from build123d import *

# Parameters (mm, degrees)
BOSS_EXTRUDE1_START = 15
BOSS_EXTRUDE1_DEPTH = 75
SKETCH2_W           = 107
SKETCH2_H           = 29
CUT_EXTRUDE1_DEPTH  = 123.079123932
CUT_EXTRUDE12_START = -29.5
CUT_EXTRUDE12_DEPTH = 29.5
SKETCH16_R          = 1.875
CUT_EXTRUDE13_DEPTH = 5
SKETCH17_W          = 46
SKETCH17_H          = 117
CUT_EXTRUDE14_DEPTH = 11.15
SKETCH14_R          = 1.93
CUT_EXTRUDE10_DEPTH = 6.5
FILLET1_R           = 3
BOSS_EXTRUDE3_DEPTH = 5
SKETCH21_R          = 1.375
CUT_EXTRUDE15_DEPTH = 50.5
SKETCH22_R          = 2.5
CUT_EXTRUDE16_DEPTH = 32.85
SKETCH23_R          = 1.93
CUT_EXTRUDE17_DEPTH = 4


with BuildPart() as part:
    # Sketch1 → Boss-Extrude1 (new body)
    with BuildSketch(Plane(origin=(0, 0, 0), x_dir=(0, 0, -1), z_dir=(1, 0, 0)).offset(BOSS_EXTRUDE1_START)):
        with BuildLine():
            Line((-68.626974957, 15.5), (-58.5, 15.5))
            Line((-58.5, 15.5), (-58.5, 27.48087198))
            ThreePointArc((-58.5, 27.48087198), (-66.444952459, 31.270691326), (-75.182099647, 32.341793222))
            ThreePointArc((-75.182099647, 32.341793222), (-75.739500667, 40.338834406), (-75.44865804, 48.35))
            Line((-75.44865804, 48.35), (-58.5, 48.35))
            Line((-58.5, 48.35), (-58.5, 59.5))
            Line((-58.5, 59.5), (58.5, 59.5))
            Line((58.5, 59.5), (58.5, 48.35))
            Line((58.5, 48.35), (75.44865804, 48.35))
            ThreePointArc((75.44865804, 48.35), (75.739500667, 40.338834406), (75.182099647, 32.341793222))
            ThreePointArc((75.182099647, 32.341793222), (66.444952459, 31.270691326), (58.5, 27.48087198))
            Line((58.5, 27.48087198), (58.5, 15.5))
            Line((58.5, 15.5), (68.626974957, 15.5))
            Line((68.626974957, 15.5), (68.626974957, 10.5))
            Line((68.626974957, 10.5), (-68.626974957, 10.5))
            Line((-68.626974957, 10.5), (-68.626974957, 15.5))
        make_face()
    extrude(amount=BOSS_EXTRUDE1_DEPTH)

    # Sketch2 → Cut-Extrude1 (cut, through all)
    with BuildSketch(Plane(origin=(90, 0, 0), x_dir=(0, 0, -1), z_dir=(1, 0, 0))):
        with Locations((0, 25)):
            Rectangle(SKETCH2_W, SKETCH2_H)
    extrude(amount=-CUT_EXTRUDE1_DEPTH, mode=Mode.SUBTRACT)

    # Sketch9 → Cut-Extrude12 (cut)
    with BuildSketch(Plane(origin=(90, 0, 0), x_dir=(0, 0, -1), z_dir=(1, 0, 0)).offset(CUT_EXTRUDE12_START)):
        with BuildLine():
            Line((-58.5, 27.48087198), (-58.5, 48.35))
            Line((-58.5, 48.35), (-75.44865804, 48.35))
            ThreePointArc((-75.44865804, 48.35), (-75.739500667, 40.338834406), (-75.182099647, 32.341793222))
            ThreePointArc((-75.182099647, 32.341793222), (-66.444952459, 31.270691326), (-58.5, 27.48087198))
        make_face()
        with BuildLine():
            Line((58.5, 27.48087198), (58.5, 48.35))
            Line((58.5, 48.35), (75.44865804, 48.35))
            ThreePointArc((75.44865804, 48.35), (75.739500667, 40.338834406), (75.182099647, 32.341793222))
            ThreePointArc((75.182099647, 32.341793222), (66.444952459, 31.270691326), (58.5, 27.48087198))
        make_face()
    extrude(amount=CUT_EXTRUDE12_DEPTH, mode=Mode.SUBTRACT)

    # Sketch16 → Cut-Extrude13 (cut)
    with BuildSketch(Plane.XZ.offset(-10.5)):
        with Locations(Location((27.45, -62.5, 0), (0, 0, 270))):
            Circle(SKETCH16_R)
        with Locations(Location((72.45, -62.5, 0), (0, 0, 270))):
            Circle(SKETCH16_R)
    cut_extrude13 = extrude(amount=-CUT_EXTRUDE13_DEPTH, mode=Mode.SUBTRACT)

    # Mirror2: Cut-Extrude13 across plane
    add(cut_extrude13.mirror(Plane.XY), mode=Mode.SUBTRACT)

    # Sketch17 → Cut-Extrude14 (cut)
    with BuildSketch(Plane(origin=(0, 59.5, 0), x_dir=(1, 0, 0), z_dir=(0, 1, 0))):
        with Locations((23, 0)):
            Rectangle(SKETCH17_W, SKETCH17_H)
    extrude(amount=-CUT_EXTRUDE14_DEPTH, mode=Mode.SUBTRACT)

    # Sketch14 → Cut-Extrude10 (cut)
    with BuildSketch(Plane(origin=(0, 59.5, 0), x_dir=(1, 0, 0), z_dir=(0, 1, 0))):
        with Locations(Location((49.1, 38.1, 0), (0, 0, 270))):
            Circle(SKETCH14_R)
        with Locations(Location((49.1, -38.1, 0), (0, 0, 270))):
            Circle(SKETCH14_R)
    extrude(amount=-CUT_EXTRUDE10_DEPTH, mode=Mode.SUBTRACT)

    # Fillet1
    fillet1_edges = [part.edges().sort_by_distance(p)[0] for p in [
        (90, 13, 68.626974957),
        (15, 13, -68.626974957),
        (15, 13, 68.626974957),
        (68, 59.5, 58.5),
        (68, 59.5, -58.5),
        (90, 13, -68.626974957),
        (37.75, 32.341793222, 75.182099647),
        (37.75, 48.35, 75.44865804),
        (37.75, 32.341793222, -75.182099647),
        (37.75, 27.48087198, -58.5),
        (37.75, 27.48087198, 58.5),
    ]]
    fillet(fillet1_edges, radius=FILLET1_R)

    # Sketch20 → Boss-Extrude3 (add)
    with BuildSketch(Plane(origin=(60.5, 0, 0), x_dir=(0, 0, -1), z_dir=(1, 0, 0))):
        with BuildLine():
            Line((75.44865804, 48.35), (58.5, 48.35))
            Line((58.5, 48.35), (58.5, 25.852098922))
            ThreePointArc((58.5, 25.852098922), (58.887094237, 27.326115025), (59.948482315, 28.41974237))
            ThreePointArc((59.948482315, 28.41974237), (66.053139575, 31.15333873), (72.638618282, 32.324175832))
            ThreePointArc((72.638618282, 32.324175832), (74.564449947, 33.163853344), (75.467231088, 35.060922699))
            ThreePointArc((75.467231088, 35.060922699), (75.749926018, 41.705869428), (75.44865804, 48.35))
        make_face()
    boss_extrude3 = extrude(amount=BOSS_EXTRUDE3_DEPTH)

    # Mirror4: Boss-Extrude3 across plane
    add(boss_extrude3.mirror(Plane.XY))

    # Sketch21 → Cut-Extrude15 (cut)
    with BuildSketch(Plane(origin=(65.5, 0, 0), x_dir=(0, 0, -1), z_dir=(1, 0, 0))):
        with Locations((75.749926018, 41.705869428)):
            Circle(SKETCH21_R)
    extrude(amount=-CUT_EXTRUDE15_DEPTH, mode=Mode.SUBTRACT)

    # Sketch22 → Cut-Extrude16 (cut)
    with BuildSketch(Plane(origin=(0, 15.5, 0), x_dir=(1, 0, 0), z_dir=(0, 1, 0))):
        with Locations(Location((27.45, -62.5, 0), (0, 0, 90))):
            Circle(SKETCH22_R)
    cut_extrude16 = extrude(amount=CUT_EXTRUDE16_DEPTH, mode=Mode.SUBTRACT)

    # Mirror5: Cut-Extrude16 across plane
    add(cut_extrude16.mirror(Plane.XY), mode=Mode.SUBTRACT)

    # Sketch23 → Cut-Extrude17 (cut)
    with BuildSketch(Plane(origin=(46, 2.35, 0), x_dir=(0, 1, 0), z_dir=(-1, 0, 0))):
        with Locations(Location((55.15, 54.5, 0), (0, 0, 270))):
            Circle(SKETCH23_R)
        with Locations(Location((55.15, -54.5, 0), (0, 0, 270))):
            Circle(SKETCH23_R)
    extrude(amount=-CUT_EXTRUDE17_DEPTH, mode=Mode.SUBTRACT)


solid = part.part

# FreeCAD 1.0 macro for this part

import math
import FreeCAD as App
import Part
import Sketcher
from FreeCAD import Vector


def edges_at(feature, points):
    """Names of the edges that pass closest to the given points."""
    edges = feature.Shape.Edges
    near = lambda p: min(range(len(edges)), key=lambda i: edges[i].distToShape(Part.Vertex(*p))[0])
    return sorted({f"Edge{near(p) + 1}" for p in points})

doc = App.newDocument("Part")
body = doc.addObject("PartDesign::Body", "Body")

# Sketch on YZ plane
sketch1 = body.newObject("Sketcher::SketchObject", "Sketch")
sketch1.AttachmentSupport = (doc.getObject("YZ_Plane"), [""])
sketch1.MapMode = "FlatFace"
sketch1.AttachmentOffset = App.Placement(Vector(0, 0, 15), App.Rotation())
sketch1.addGeometry([
    Part.LineSegment(Vector(15.5, 58.5, 0), Vector(15.5, 68.626975, 0)),  # 0
    Part.LineSegment(Vector(15.5, 68.626975, 0), Vector(10.5, 68.626975, 0)),  # 1
    Part.LineSegment(Vector(10.5, 68.626975, 0), Vector(10.5, -68.626975, 0)),  # 2
    Part.LineSegment(Vector(10.5, -68.626975, 0), Vector(15.5, -68.626975, 0)),  # 3
    Part.LineSegment(Vector(15.5, -68.626975, 0), Vector(15.5, -58.5, 0)),  # 4
    Part.LineSegment(Vector(15.5, -58.5, 0), Vector(27.480872, -58.5, 0)),  # 5
    Part.ArcOfCircle(Part.Circle(Vector(5.000595, -74.099676, 0), Vector(0, 0, 1), 27.362616), math.radians(-2.267125), math.radians(34.757834)),  # 6
    Part.ArcOfCircle(Part.Circle(Vector(41.6, 0, 0), Vector(0, 0, 1), 75.75), math.radians(-97.020274), math.radians(-84.887655)),  # 7
    Part.LineSegment(Vector(48.35, -75.448658, 0), Vector(48.35, -58.5, 0)),  # 8
    Part.LineSegment(Vector(48.35, -58.5, 0), Vector(59.5, -58.5, 0)),  # 9
    Part.LineSegment(Vector(59.5, -58.5, 0), Vector(59.5, 58.5, 0)),  # 10
    Part.LineSegment(Vector(59.5, 58.5, 0), Vector(48.35, 58.5, 0)),  # 11
    Part.LineSegment(Vector(48.35, 58.5, 0), Vector(48.35, 75.448658, 0)),  # 12
    Part.ArcOfCircle(Part.Circle(Vector(41.6, 0, 0), Vector(0, 0, 1), 75.75), math.radians(84.887655), math.radians(97.020274)),  # 13
    Part.ArcOfCircle(Part.Circle(Vector(5.000595, 74.099676, 0), Vector(0, 0, 1), 27.362616), math.radians(-34.757834), math.radians(2.267125)),  # 14
    Part.LineSegment(Vector(27.480872, 58.5, 0), Vector(15.5, 58.5, 0)),  # 15
], False)
sketch1.addConstraint([
    Sketcher.Constraint("Coincident", 0, 2, 1, 1),
    Sketcher.Constraint("Coincident", 1, 2, 2, 1),
    Sketcher.Constraint("Coincident", 2, 2, 3, 1),
    Sketcher.Constraint("Coincident", 3, 2, 4, 1),
    Sketcher.Constraint("Coincident", 4, 2, 5, 1),
    Sketcher.Constraint("Coincident", 5, 2, 6, 2),
    Sketcher.Constraint("Coincident", 6, 1, 7, 1),
    Sketcher.Constraint("Coincident", 7, 2, 8, 1),
    Sketcher.Constraint("Coincident", 8, 2, 9, 1),
    Sketcher.Constraint("Coincident", 9, 2, 10, 1),
    Sketcher.Constraint("Coincident", 10, 2, 11, 1),
    Sketcher.Constraint("Coincident", 11, 2, 12, 1),
    Sketcher.Constraint("Coincident", 12, 2, 13, 1),
    Sketcher.Constraint("Coincident", 13, 2, 14, 2),
    Sketcher.Constraint("Coincident", 14, 1, 15, 1),
    Sketcher.Constraint("Coincident", 15, 2, 0, 1),
    Sketcher.Constraint("Vertical", 0),
    Sketcher.Constraint("Horizontal", 1),
    Sketcher.Constraint("Vertical", 2),
    Sketcher.Constraint("Horizontal", 3),
    Sketcher.Constraint("Vertical", 4),
    Sketcher.Constraint("Horizontal", 5),
    Sketcher.Constraint("Vertical", 8),
    Sketcher.Constraint("Horizontal", 9),
    Sketcher.Constraint("Vertical", 10),
    Sketcher.Constraint("Horizontal", 11),
    Sketcher.Constraint("Vertical", 12),
    Sketcher.Constraint("Horizontal", 15),
    Sketcher.Constraint("Coincident", 13, 3, 7, 3),
    Sketcher.Constraint("Equal", 7, 13),
    Sketcher.Constraint("Equal", 6, 14),
    Sketcher.Constraint("Symmetric", 6, 3, 14, 3, -1),
    Sketcher.Constraint("Symmetric", 0, 2, 3, 2, -1),
    Sketcher.Constraint("Symmetric", 8, 2, 11, 2, -1),
    Sketcher.Constraint("PointOnObject", 7, 3, -1),
    Sketcher.Constraint("Horizontal", 5, 2, 8, 2),
    Sketcher.Constraint("Horizontal", 11, 2, 14, 1),
    Sketcher.Constraint("DistanceX", 1, 2, 1, 1, 5.0),
    Sketcher.Constraint("DistanceY", 10, 1, 10, 2, 117.0),
    Sketcher.Constraint("Radius", 7, 75.75),
    Sketcher.Constraint("DistanceX", 4, 2, 9, 2, 44.0),
    Sketcher.Constraint("DistanceX", 9, 1, 9, 2, 11.15),
    Sketcher.Constraint("DistanceX", -1, 1, 7, 3, 41.6),
    Sketcher.Constraint("DistanceX", -1, 1, 0, 2, 15.5),
    Sketcher.Constraint("Radius", 6, 27.362616),
    Sketcher.Constraint("DistanceX", 5, 1, 5, 2, 11.980872),
    Sketcher.Constraint("DistanceY", 2, 2, 2, 1, 137.25395),
    Sketcher.Constraint("DistanceY", -1, 1, 13, 2, 75.1821),
])
pad1 = body.newObject("PartDesign::Pad", "Pad")
pad1.Profile = sketch1
pad1.Length = 75

# Sketch on YZ plane
sketch2 = body.newObject("Sketcher::SketchObject", "Sketch001")
sketch2.AttachmentSupport = (doc.getObject("YZ_Plane"), [""])
sketch2.MapMode = "FlatFace"
sketch2.AttachmentOffset = App.Placement(Vector(0, 0, 90), App.Rotation())
sketch2.addGeometry([
    Part.LineSegment(Vector(39.5, 53.5, 0), Vector(10.5, 53.5, 0)),
    Part.LineSegment(Vector(10.5, 53.5, 0), Vector(10.5, -53.5, 0)),
    Part.LineSegment(Vector(10.5, -53.5, 0), Vector(39.5, -53.5, 0)),
    Part.LineSegment(Vector(39.5, -53.5, 0), Vector(39.5, 53.5, 0)),
], False)
sketch2.addConstraint([
    Sketcher.Constraint("Coincident", 0, 2, 1, 1),
    Sketcher.Constraint("Coincident", 1, 2, 2, 1),
    Sketcher.Constraint("Coincident", 2, 2, 3, 1),
    Sketcher.Constraint("Coincident", 3, 2, 0, 1),
    Sketcher.Constraint("Horizontal", 0),
    Sketcher.Constraint("Vertical", 1),
    Sketcher.Constraint("Horizontal", 2),
    Sketcher.Constraint("Vertical", 3),
    Sketcher.Constraint("DistanceX", 0, 2, 0, 1, 29.0),
    Sketcher.Constraint("DistanceY", 1, 2, 1, 1, 107.0),
    Sketcher.Constraint("DistanceX", -1, 1, 0, 2, 10.5),
    Sketcher.Constraint("DistanceY", -1, 1, 0, 2, 53.5),
])
pocket1 = body.newObject("PartDesign::Pocket", "Pocket")
pocket1.Profile = sketch2
pocket1.Type = "ThroughAll"

# Sketch on YZ plane
sketch3 = body.newObject("Sketcher::SketchObject", "Sketch002")
sketch3.AttachmentSupport = (doc.getObject("YZ_Plane"), [""])
sketch3.MapMode = "FlatFace"
sketch3.AttachmentOffset = App.Placement(Vector(0, 0, 60.5), App.Rotation())
sketch3.addGeometry([
    Part.LineSegment(Vector(27.480872, 58.5, 0), Vector(48.35, 58.5, 0)),  # 0
    Part.LineSegment(Vector(48.35, 58.5, 0), Vector(48.35, 75.448658, 0)),  # 1
    Part.ArcOfCircle(Part.Circle(Vector(41.6, 0, 0), Vector(0, 0, 1), 75.75), math.radians(84.887655), math.radians(97.020274)),  # 2
    Part.ArcOfCircle(Part.Circle(Vector(5.000595, 74.099676, 0), Vector(0, 0, 1), 27.362616), math.radians(-34.757834), math.radians(2.267125)),  # 3
    Part.LineSegment(Vector(48.35, -58.5, 0), Vector(27.480872, -58.5, 0)),  # 4
    Part.ArcOfCircle(Part.Circle(Vector(5.000595, -74.099676, 0), Vector(0, 0, 1), 27.362616), math.radians(-2.267125), math.radians(34.757834)),  # 5
    Part.ArcOfCircle(Part.Circle(Vector(41.6, 0, 0), Vector(0, 0, 1), 75.75), math.radians(-97.020274), math.radians(-84.887655)),  # 6
    Part.LineSegment(Vector(48.35, -75.448658, 0), Vector(48.35, -58.5, 0)),  # 7
], False)
sketch3.addConstraint([
    Sketcher.Constraint("Coincident", 0, 2, 1, 1),
    Sketcher.Constraint("Coincident", 1, 2, 2, 1),
    Sketcher.Constraint("Coincident", 2, 2, 3, 2),
    Sketcher.Constraint("Coincident", 3, 1, 0, 1),
    Sketcher.Constraint("Coincident", 4, 2, 5, 2),
    Sketcher.Constraint("Coincident", 5, 1, 6, 1),
    Sketcher.Constraint("Coincident", 6, 2, 7, 1),
    Sketcher.Constraint("Coincident", 7, 2, 4, 1),
    Sketcher.Constraint("Horizontal", 0),
    Sketcher.Constraint("Vertical", 1),
    Sketcher.Constraint("Horizontal", 4),
    Sketcher.Constraint("Vertical", 7),
    Sketcher.Constraint("Coincident", 6, 3, 2, 3),
    Sketcher.Constraint("Equal", 3, 5),
    Sketcher.Constraint("Equal", 2, 6),
    Sketcher.Constraint("Symmetric", 3, 3, 5, 3, -1),
    Sketcher.Constraint("Symmetric", 1, 2, 6, 2, -1),
    Sketcher.Constraint("Vertical", 3, 1, 4, 2),
    Sketcher.Constraint("Radius", 2, 75.75),
    Sketcher.Constraint("DistanceY", 4, 2, 3, 1, 117.0),
    Sketcher.Constraint("DistanceX", -1, 1, 2, 3, 41.6),
    Sketcher.Constraint("DistanceX", -1, 1, 0, 2, 48.35),
    Sketcher.Constraint("Radius", 3, 27.362616),
    Sketcher.Constraint("DistanceX", 0, 1, 0, 2, 20.869128),
    Sketcher.Constraint("DistanceY", -1, 1, 2, 2, 75.1821),
])
pocket2 = body.newObject("PartDesign::Pocket", "Pocket001")
pocket2.Profile = sketch3
pocket2.Length = 29.5
pocket2.Reversed = True

# Sketch on XZ plane
sketch4 = body.newObject("Sketcher::SketchObject", "Sketch003")
sketch4.AttachmentSupport = (doc.getObject("XZ_Plane"), [""])
sketch4.MapMode = "FlatFace"
sketch4.AttachmentOffset = App.Placement(Vector(0, 0, -10.5), App.Rotation())
sketch4.addGeometry([
    Part.Circle(Vector(27.45, -62.5, 0), Vector(0, 0, 1), 1.875),
    Part.Circle(Vector(72.45, -62.5, 0), Vector(0, 0, 1), 1.875),
], False)
sketch4.addConstraint([
    Sketcher.Constraint("Equal", 0, 1),
    Sketcher.Constraint("Horizontal", 0, 3, 1, 3),
    Sketcher.Constraint("Diameter", 0, 3.75),
    Sketcher.Constraint("DistanceX", 0, 3, 1, 3, 45.0),
    Sketcher.Constraint("DistanceY", 0, 3, -1, 1, 62.5),
    Sketcher.Constraint("DistanceX", -1, 1, 0, 3, 27.45),
])
pocket3 = body.newObject("PartDesign::Pocket", "Pocket002")
pocket3.Profile = sketch4
pocket3.Length = 5
doc.recompute()

mirrored = body.newObject("PartDesign::Mirrored", "Mirrored")
mirrored.Originals = [pocket3]
mirrored.MirrorPlane = (doc.getObject("XY_Plane"), [""])
body.Tip = mirrored

# Sketch on XZ plane
sketch5 = body.newObject("Sketcher::SketchObject", "Sketch004")
sketch5.AttachmentSupport = (doc.getObject("XZ_Plane"), [""])
sketch5.MapMode = "FlatFace"
sketch5.AttachmentOffset = App.Placement(Vector(0, 0, -59.5), App.Rotation())
sketch5.addGeometry([
    Part.LineSegment(Vector(0, -58.5, 0), Vector(0, 58.5, 0)),
    Part.LineSegment(Vector(0, 58.5, 0), Vector(46, 58.5, 0)),
    Part.LineSegment(Vector(46, 58.5, 0), Vector(46, -58.5, 0)),
    Part.LineSegment(Vector(46, -58.5, 0), Vector(0, -58.5, 0)),
], False)
sketch5.addConstraint([
    Sketcher.Constraint("Coincident", 0, 2, 1, 1),
    Sketcher.Constraint("Coincident", 1, 2, 2, 1),
    Sketcher.Constraint("Coincident", 2, 2, 3, 1),
    Sketcher.Constraint("Coincident", 3, 2, 0, 1),
    Sketcher.Constraint("Vertical", 0),
    Sketcher.Constraint("Horizontal", 1),
    Sketcher.Constraint("Vertical", 2),
    Sketcher.Constraint("Horizontal", 3),
    Sketcher.Constraint("Symmetric", 0, 2, 3, 2, -1, 1),
    Sketcher.Constraint("DistanceX", 1, 1, 1, 2, 46.0),
    Sketcher.Constraint("DistanceY", 0, 1, 0, 2, 117.0),
])
pocket4 = body.newObject("PartDesign::Pocket", "Pocket003")
pocket4.Profile = sketch5
pocket4.Length = 11.15
pocket4.Reversed = True

# Sketch on XZ plane
sketch6 = body.newObject("Sketcher::SketchObject", "Sketch005")
sketch6.AttachmentSupport = (doc.getObject("XZ_Plane"), [""])
sketch6.MapMode = "FlatFace"
sketch6.AttachmentOffset = App.Placement(Vector(0, 0, -59.5), App.Rotation())
sketch6.addGeometry([
    Part.Circle(Vector(49.1, -38.1, 0), Vector(0, 0, 1), 1.93),
    Part.Circle(Vector(49.1, 38.1, 0), Vector(0, 0, 1), 1.93),
], False)
sketch6.addConstraint([
    Sketcher.Constraint("Equal", 0, 1),
    Sketcher.Constraint("Symmetric", 0, 3, 1, 3, -1),
    Sketcher.Constraint("Diameter", 0, 3.86),
    Sketcher.Constraint("DistanceX", -1, 1, 0, 3, 49.1),
    Sketcher.Constraint("DistanceY", 0, 3, -1, 1, 38.1),
])
pocket5 = body.newObject("PartDesign::Pocket", "Pocket004")
pocket5.Profile = sketch6
pocket5.Length = 6.5
pocket5.Reversed = True
doc.recompute()

fillet = body.newObject("PartDesign::Fillet", "Fillet")
fillet.Base = (pocket5, edges_at(pocket5, [
    (90, 13, 68.627),
    (15, 13, -68.627),
    (15, 13, 68.627),
    (68, 59.5, 58.5),
    (68, 59.5, -58.5),
    (90, 13, -68.627),
    (37.75, 32.342, 75.182),
    (37.75, 48.35, 75.449),
    (37.75, 32.342, -75.182),
    (37.75, 27.481, -58.5),
    (37.75, 27.481, 58.5),
]))
fillet.Radius = 3

# Sketch on YZ plane
sketch7 = body.newObject("Sketcher::SketchObject", "Sketch006")
sketch7.AttachmentSupport = (doc.getObject("YZ_Plane"), [""])
sketch7.MapMode = "FlatFace"
sketch7.AttachmentOffset = App.Placement(Vector(0, 0, 60.5), App.Rotation())
sketch7.addGeometry([
    Part.LineSegment(Vector(48.35, -75.448658, 0), Vector(48.35, -58.5, 0)),  # 0
    Part.LineSegment(Vector(48.35, -58.5, 0), Vector(25.852099, -58.5, 0)),  # 1
    Part.ArcOfCircle(Part.Circle(Vector(25.852099, -61.5, 0), Vector(0, 0, 1), 3), math.radians(31.142783), math.radians(90)),  # 2
    Part.ArcOfCircle(Part.Circle(Vector(5.000595, -74.099676, 0), Vector(0, 0, 1), 27.362616), math.radians(3.060829), math.radians(31.142783)),  # 3
    Part.ArcOfCircle(Part.Circle(Vector(35.319896, -72.47843, 0), Vector(0, 0, 1), 3), math.radians(-176.939171), math.radians(-94.95219)),  # 4
    Part.ArcOfCircle(Part.Circle(Vector(41.6, 0, 0), Vector(0, 0, 1), 75.75), math.radians(-94.95219), math.radians(-84.887655)),  # 5
], False)
sketch7.addConstraint([
    Sketcher.Constraint("Coincident", 0, 2, 1, 1),
    Sketcher.Constraint("Tangent", 1, 2, 2, 2),
    Sketcher.Constraint("Tangent", 2, 1, 3, 2),
    Sketcher.Constraint("Tangent", 3, 1, 4, 1),
    Sketcher.Constraint("Tangent", 4, 2, 5, 1),
    Sketcher.Constraint("Coincident", 5, 2, 0, 1),
    Sketcher.Constraint("Vertical", 0),
    Sketcher.Constraint("Horizontal", 1),
    Sketcher.Constraint("Equal", 2, 4),
    Sketcher.Constraint("PointOnObject", 5, 3, -1),
    Sketcher.Constraint("Radius", 2, 3.0),
    Sketcher.Constraint("Radius", 5, 75.75),
    Sketcher.Constraint("DistanceY", 2, 3, -1, 1, 61.5),
    Sketcher.Constraint("DistanceX", -1, 1, 5, 3, 41.6),
    Sketcher.Constraint("DistanceX", -1, 1, 0, 2, 48.35),
    Sketcher.Constraint("DistanceX", 1, 2, 1, 1, 22.497901),
    Sketcher.Constraint("Radius", 3, 27.362616),
    Sketcher.Constraint("DistanceX", 3, 3, 4, 3, 30.319301),
])
pad2 = body.newObject("PartDesign::Pad", "Pad001")
pad2.Profile = sketch7
pad2.Length = 5
doc.recompute()

mirrored2 = body.newObject("PartDesign::Mirrored", "Mirrored001")
mirrored2.Originals = [pad2]
mirrored2.MirrorPlane = (doc.getObject("XY_Plane"), [""])
body.Tip = mirrored2

# Sketch on YZ plane
sketch8 = body.newObject("Sketcher::SketchObject", "Sketch007")
sketch8.AttachmentSupport = (doc.getObject("YZ_Plane"), [""])
sketch8.MapMode = "FlatFace"
sketch8.AttachmentOffset = App.Placement(Vector(0, 0, 65.5), App.Rotation())
sketch8.addGeometry(Part.Circle(Vector(41.705869, -75.749926, 0), Vector(0, 0, 1), 1.375), False)
sketch8.addConstraint([
    Sketcher.Constraint("Diameter", 0, 2.75),
    Sketcher.Constraint("DistanceX", -1, 1, 0, 3, 41.705869),
    Sketcher.Constraint("DistanceY", 0, 3, -1, 1, 75.749926),
])
pocket6 = body.newObject("PartDesign::Pocket", "Pocket005")
pocket6.Profile = sketch8
pocket6.Length = 50.5

# Sketch on XZ plane
sketch9 = body.newObject("Sketcher::SketchObject", "Sketch008")
sketch9.AttachmentSupport = (doc.getObject("XZ_Plane"), [""])
sketch9.MapMode = "FlatFace"
sketch9.AttachmentOffset = App.Placement(Vector(0, 0, -15.5), App.Rotation())
sketch9.addGeometry(Part.Circle(Vector(27.45, 62.5, 0), Vector(0, 0, 1), 2.5), False)
sketch9.addConstraint([
    Sketcher.Constraint("Diameter", 0, 5.0),
    Sketcher.Constraint("DistanceY", -1, 1, 0, 3, 62.5),
    Sketcher.Constraint("DistanceX", -1, 1, 0, 3, 27.45),
])
pocket7 = body.newObject("PartDesign::Pocket", "Pocket006")
pocket7.Profile = sketch9
pocket7.Length = 32.85
doc.recompute()

mirrored3 = body.newObject("PartDesign::Mirrored", "Mirrored002")
mirrored3.Originals = [pocket7]
mirrored3.MirrorPlane = (doc.getObject("XY_Plane"), [""])
body.Tip = mirrored3

# Sketch on YZ plane
sketch10 = body.newObject("Sketcher::SketchObject", "Sketch009")
sketch10.AttachmentSupport = (doc.getObject("YZ_Plane"), [""])
sketch10.MapMode = "FlatFace"
sketch10.AttachmentOffset = App.Placement(Vector(0, 0, 46), App.Rotation())
sketch10.addGeometry([
    Part.Circle(Vector(57.5, -54.5, 0), Vector(0, 0, 1), 1.93),
    Part.Circle(Vector(57.5, 54.5, 0), Vector(0, 0, 1), 1.93),
], False)
sketch10.addConstraint([
    Sketcher.Constraint("Equal", 0, 1),
    Sketcher.Constraint("Symmetric", 0, 3, 1, 3, -1),
    Sketcher.Constraint("Diameter", 0, 3.86),
    Sketcher.Constraint("DistanceY", 0, 3, 1, 3, 109.0),
    Sketcher.Constraint("DistanceX", -1, 1, 0, 3, 57.5),
])
pocket8 = body.newObject("PartDesign::Pocket", "Pocket007")
pocket8.Profile = sketch10
pocket8.Length = 4
pocket8.Reversed = True

doc.recompute()
